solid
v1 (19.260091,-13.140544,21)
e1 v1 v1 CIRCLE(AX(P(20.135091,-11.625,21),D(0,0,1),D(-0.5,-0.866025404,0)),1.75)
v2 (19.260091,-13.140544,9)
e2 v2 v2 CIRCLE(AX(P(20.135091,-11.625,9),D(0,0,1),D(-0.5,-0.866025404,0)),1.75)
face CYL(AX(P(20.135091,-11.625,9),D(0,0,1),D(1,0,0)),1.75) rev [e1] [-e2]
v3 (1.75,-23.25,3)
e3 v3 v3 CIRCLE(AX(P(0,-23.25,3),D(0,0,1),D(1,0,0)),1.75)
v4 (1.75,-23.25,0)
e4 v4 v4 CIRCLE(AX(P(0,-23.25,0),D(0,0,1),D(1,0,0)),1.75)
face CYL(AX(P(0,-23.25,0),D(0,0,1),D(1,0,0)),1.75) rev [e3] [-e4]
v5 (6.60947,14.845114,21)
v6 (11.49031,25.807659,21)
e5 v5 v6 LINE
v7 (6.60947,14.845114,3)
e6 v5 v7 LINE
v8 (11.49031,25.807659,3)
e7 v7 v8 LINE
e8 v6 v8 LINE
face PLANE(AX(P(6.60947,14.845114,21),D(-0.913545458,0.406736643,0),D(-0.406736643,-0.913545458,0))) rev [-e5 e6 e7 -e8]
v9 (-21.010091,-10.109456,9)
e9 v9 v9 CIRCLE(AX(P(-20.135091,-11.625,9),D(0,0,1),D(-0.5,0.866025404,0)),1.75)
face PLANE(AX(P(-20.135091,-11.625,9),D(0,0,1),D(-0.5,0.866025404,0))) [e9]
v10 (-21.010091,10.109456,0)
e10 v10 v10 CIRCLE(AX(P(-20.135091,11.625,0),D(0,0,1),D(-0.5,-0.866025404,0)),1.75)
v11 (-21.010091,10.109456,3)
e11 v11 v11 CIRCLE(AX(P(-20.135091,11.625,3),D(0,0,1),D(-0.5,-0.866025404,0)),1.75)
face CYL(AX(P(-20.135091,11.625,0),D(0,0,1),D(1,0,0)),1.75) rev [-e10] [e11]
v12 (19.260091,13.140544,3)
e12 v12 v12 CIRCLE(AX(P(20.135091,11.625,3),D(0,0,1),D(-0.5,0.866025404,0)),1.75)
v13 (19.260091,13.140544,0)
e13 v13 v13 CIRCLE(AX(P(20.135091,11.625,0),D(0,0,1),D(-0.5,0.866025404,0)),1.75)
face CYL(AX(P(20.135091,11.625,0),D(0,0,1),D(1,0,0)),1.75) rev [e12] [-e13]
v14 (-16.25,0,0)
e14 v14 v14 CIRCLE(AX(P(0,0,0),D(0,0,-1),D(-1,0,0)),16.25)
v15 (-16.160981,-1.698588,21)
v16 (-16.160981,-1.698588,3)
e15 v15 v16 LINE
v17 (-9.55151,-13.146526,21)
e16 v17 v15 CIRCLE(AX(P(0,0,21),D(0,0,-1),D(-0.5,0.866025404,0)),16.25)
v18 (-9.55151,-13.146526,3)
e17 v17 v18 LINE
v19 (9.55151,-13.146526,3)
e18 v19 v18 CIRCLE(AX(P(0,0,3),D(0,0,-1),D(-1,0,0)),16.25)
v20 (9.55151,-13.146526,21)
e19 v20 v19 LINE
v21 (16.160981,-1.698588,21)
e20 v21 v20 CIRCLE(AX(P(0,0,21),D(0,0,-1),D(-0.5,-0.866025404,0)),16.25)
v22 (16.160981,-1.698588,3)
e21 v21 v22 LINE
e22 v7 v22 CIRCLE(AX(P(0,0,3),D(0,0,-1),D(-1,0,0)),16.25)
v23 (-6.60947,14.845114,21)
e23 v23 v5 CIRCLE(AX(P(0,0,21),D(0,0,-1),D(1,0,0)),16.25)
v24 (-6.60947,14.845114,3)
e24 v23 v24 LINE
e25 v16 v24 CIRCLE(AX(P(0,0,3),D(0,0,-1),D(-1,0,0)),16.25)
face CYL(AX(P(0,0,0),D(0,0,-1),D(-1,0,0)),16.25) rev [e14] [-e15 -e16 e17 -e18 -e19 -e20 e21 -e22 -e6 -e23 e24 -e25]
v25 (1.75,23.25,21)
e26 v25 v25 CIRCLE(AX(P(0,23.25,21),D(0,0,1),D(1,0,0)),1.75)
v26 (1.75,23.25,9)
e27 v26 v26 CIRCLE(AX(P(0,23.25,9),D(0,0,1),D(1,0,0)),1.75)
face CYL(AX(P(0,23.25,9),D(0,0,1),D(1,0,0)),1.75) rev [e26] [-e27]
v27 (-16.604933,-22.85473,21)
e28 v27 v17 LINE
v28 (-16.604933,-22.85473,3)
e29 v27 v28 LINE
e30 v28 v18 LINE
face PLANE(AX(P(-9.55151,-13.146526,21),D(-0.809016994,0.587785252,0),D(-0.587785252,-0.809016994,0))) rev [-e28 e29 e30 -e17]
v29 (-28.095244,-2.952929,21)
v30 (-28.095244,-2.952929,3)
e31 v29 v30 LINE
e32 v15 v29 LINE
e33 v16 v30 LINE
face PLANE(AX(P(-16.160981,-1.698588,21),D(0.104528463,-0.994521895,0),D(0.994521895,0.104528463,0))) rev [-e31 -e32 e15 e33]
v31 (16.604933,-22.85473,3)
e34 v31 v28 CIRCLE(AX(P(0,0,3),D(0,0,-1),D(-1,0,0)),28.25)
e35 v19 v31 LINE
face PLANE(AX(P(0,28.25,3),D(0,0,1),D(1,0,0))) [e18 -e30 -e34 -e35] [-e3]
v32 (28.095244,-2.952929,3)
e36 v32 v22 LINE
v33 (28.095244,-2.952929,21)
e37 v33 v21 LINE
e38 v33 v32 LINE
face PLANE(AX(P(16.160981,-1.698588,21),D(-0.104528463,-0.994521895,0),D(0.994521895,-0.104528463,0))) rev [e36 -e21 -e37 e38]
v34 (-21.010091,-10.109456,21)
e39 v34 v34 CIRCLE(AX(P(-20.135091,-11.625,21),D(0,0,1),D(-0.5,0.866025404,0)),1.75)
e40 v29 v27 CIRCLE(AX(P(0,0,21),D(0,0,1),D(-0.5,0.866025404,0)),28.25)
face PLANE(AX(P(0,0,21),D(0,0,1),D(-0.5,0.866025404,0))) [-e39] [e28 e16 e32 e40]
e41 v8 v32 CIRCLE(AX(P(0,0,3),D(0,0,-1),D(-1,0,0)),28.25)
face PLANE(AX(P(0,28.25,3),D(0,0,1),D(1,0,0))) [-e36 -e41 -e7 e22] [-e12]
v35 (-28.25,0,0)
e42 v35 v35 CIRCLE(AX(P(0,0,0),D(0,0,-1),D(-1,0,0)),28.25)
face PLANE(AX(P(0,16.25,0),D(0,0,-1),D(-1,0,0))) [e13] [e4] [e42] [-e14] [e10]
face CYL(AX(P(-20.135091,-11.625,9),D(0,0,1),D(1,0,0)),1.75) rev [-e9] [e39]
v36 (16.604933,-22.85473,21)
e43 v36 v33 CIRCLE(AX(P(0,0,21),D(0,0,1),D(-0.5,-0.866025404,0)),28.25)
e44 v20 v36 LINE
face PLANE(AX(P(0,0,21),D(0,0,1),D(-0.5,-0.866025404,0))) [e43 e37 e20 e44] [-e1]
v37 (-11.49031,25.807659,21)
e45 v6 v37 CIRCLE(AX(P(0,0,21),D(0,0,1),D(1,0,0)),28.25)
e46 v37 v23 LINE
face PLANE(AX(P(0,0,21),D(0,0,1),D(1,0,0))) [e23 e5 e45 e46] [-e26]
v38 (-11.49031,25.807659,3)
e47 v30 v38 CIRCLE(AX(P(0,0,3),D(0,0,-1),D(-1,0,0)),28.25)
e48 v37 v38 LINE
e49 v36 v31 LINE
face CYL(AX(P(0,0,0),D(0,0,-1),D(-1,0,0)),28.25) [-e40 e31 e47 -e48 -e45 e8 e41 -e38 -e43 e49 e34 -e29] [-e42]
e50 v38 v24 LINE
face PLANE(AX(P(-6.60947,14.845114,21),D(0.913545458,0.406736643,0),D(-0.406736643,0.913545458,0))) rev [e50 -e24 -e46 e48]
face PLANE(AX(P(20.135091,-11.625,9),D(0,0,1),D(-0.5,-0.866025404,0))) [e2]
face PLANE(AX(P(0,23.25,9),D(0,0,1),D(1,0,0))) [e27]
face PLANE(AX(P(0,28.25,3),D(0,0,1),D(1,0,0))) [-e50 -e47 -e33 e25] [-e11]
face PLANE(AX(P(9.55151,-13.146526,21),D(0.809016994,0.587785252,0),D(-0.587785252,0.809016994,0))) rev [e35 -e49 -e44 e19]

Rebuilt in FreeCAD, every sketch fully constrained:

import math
import FreeCAD as App
import Part
import Sketcher
Q = App.Units.Quantity


def add_polygon(sketch, points):
    """Adds a closed chain of lines whose ends are joined by coincident constraints."""
    first, n = sketch.GeometryCount, len(points)
    for a, b in zip(points, points[1:] + points[:1]):
        sketch.addGeometry(Part.LineSegment(App.Vector(*a, 0), App.Vector(*b, 0)), False)
    for i in range(n):
        sketch.addConstraint(Sketcher.Constraint("Coincident", first + i, 2, first + (i + 1) % n, 1))

doc = App.newDocument("Part")
body = doc.addObject("PartDesign::Body", "Body")

# Sketch on YZ plane
sketch1 = body.newObject("Sketcher::SketchObject", "Sketch")
sketch1.AttachmentSupport = (doc.getObject("YZ_Plane"), [""])
sketch1.MapMode = "FlatFace"
add_polygon(sketch1, [(28.25, 3), (16.25, 3), (16.25, 0), (28.25, 0)])  # lines 0-3
sketch1.addConstraint([
    Sketcher.Constraint("Horizontal", 0),
    Sketcher.Constraint("Vertical", 1),
    Sketcher.Constraint("Horizontal", 2),
    Sketcher.Constraint("Vertical", 3),
    Sketcher.Constraint("PointOnObject", 1, 2, -1),
    Sketcher.Constraint("DistanceX", 0, 2, 0, 1, Q("12 mm")),
    Sketcher.Constraint("DistanceY", 1, 2, 1, 1, Q("3 mm")),
    Sketcher.Constraint("DistanceX", -1, 1, 0, 2, Q("16.25 mm")),
])
revolution = body.newObject("PartDesign::Revolution", "Revolution")
revolution.Profile = sketch1
revolution.ReferenceAxis = (sketch1, ["V_Axis"])
revolution.Angle = 360

# Sketch on XY plane
sketch2 = body.newObject("Sketcher::SketchObject", "Sketch001")
sketch2.AttachmentSupport = (doc.getObject("XY_Plane"), [""])
sketch2.MapMode = "FlatFace"
sketch2.AttachmentOffset = App.Placement(App.Vector(0, 0, 3), App.Rotation())
sketch2.addGeometry([
    Part.LineSegment(App.Vector(-11.49031, 25.807659, 0), App.Vector(-6.60947, 14.845114, 0)),
    Part.ArcOfCircle(Part.Circle(App.Vector(0, 0, 0), App.Vector(0, 0, 1), 16.25), math.radians(66), math.radians(114)),
    Part.LineSegment(App.Vector(6.60947, 14.845114, 0), App.Vector(11.49031, 25.807659, 0)),
    Part.ArcOfCircle(Part.Circle(App.Vector(0, 0, 0), App.Vector(0, 0, 1), 28.25), math.radians(66), math.radians(114)),
], False)
sketch2.addConstraint([
    Sketcher.Constraint("Coincident", 0, 2, 1, 2),
    Sketcher.Constraint("Coincident", 1, 1, 2, 1),
    Sketcher.Constraint("Coincident", 2, 2, 3, 1),
    Sketcher.Constraint("Coincident", 3, 2, 0, 1),
    Sketcher.Constraint("Coincident", 1, 3, -1, 1),
    Sketcher.Constraint("Coincident", 3, 3, -1, 1),
    Sketcher.Constraint("Horizontal", 0, 2, 1, 1),
    Sketcher.Constraint("Horizontal", 2, 2, 3, 2),
    Sketcher.Constraint("Angle", 0, Q("-66 deg")),
    Sketcher.Constraint("Radius", 1, Q("16.25 mm")),
    Sketcher.Constraint("Radius", 3, Q("28.25 mm")),
    Sketcher.Constraint("DistanceX", 0, 2, -1, 1, Q("6.60947 mm")),
])
pad1 = body.newObject("PartDesign::Pad", "Pad")
pad1.Profile = sketch2
pad1.Length = 18
doc.recompute()

polarpattern = body.newObject("PartDesign::PolarPattern", "PolarPattern")
polarpattern.Originals = [pad1]
polarpattern.Axis = (doc.getObject("Z_Axis"), [""])
polarpattern.Angle = 360
polarpattern.Occurrences = 3
body.Tip = polarpattern

# Sketch on XY plane
sketch3 = body.newObject("Sketcher::SketchObject", "Sketch002")
sketch3.AttachmentSupport = (doc.getObject("XY_Plane"), [""])
sketch3.MapMode = "FlatFace"
sketch3.AttachmentOffset = App.Placement(App.Vector(0, 0, 21), App.Rotation())
sketch3.addGeometry(Part.Circle(App.Vector(0, 23.25, 0), App.Vector(0, 0, 1), 1.75), False)
sketch3.addConstraint([
    Sketcher.Constraint("PointOnObject", 0, 3, -2),
    Sketcher.Constraint("Diameter", 0, Q("3.5 mm")),
    Sketcher.Constraint("DistanceY", -1, 1, 0, 3, Q("23.25 mm")),
])
pocket1 = body.newObject("PartDesign::Pocket", "Pocket")
pocket1.Profile = sketch3
pocket1.Length = 12
doc.recompute()

polarpattern2 = body.newObject("PartDesign::PolarPattern", "PolarPattern001")
polarpattern2.Originals = [pocket1]
polarpattern2.Axis = (doc.getObject("Z_Axis"), [""])
polarpattern2.Angle = 360
polarpattern2.Occurrences = 3
body.Tip = polarpattern2

# Sketch on XY plane
sketch4 = body.newObject("Sketcher::SketchObject", "Sketch003")
sketch4.AttachmentSupport = (doc.getObject("XY_Plane"), [""])
sketch4.MapMode = "FlatFace"
sketch4.AttachmentOffset = App.Placement(App.Vector(0, 0, 3), App.Rotation())
sketch4.addGeometry(Part.Circle(App.Vector(0, -23.25, 0), App.Vector(0, 0, 1), 1.75), False)
sketch4.addConstraint([
    Sketcher.Constraint("PointOnObject", 0, 3, -2),
    Sketcher.Constraint("Diameter", 0, Q("3.5 mm")),
    Sketcher.Constraint("DistanceY", 0, 3, -1, 1, Q("23.25 mm")),
])
pocket2 = body.newObject("PartDesign::Pocket", "Pocket001")
pocket2.Profile = sketch4
pocket2.Type = "ThroughAll"
doc.recompute()

polarpattern3 = body.newObject("PartDesign::PolarPattern", "PolarPattern002")
polarpattern3.Originals = [pocket2]
polarpattern3.Axis = (doc.getObject("Z_Axis"), [""])
polarpattern3.Angle = 360
polarpattern3.Occurrences = 3
body.Tip = polarpattern3

doc.recompute()
